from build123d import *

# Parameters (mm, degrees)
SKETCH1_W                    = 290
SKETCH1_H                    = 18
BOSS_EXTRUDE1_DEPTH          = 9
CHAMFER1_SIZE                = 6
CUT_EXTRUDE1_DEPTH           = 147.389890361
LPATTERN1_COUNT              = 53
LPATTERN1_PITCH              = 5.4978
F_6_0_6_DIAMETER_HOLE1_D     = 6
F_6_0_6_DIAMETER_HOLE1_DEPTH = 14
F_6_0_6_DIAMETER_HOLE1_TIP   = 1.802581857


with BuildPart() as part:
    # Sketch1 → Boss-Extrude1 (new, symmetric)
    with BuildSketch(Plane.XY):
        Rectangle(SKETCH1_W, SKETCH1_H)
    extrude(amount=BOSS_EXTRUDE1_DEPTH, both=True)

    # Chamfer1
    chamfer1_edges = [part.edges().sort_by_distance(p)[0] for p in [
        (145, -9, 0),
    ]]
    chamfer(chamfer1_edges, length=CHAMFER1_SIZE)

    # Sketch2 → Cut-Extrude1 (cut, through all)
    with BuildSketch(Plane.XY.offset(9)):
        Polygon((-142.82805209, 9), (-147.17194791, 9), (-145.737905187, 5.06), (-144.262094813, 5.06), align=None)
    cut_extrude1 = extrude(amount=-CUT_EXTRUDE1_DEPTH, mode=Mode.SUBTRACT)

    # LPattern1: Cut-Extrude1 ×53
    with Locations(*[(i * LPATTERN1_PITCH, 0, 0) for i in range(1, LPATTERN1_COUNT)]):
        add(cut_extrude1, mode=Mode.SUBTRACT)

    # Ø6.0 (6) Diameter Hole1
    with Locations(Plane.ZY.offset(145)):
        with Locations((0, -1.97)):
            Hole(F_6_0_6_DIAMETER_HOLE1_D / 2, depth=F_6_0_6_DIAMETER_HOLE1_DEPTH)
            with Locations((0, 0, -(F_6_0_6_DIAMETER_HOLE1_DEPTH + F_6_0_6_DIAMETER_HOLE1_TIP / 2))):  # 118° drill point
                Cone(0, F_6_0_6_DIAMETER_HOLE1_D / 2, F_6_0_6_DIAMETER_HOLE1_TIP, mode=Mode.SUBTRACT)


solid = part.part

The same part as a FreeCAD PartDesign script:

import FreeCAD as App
import Part
import Sketcher
from FreeCAD import Vector
Q = App.Units.Quantity


def edges_at(feature, points):
    """Names of the edges that pass closest to the given points."""
    edges = feature.Shape.Edges
    near = lambda p: min(range(len(edges)), key=lambda i: edges[i].distToShape(Part.Vertex(*p))[0])
    return sorted({f"Edge{near(p) + 1}" for p in points})


def add_polygon(sketch, points):
    """Adds a closed chain of lines whose ends are joined by coincident constraints."""
    first, n = sketch.GeometryCount, len(points)
    for a, b in zip(points, points[1:] + points[:1]):
        sketch.addGeometry(Part.LineSegment(App.Vector(*a, 0), App.Vector(*b, 0)), False)
    for i in range(n):
        sketch.addConstraint(Sketcher.Constraint("Coincident", first + i, 2, first + (i + 1) % n, 1))

doc = App.newDocument("Part")
body = doc.addObject("PartDesign::Body", "Body")

sketch1 = doc.addObject("Sketcher::SketchObject", "Sketch")
body.addObject(sketch1)
sketch1.AttachmentSupport = (doc.XY_Plane, [""])
sketch1.MapMode = "FlatFace"
add_polygon(sketch1, [(-145, 9), (-145, -9), (145, -9), (145, 9)])
sketch1.addConstraint(Sketcher.Constraint("Vertical", 0))
sketch1.addConstraint(Sketcher.Constraint("Horizontal", 1))
sketch1.addConstraint(Sketcher.Constraint("Vertical", 2))
sketch1.addConstraint(Sketcher.Constraint("Horizontal", 3))
sketch1.addConstraint(Sketcher.Constraint("Symmetric", 0, 2, 2, 2, -1, 1))
sketch1.addConstraint(Sketcher.Constraint("DistanceX", 1, 1, 1, 2, 290.0))
sketch1.addConstraint(Sketcher.Constraint("DistanceY", 0, 2, 0, 1, 18.0))
pad1 = doc.addObject("PartDesign::Pad", "Pad")
body.addObject(pad1)
pad1.Profile = sketch1
pad1.Length = 18
pad1.Midplane = True
doc.recompute()

chamfer = doc.addObject("PartDesign::Chamfer", "Chamfer")
body.addObject(chamfer)
chamfer.Base = (pad1, edges_at(pad1, [(145, -9, 0)]))
chamfer.Size = 6

sketch2 = doc.addObject("Sketcher::SketchObject", "Sketch001")
body.addObject(sketch2)
sketch2.AttachmentSupport = (doc.XY_Plane, [""])
sketch2.MapMode = "FlatFace"
sketch2.AttachmentOffset = App.Placement(Vector(0, 0, 9), App.Rotation())
add_polygon(sketch2, [(-142.8, 9), (-147.2, 9), (-145.7, 5.1), (-144.3, 5.1)])
sketch2.addConstraint(Sketcher.Constraint("Horizontal", 0))
sketch2.addConstraint(Sketcher.Constraint("Horizontal", 2))
sketch2.addConstraint(Sketcher.Constraint("Equal", 1, 3))
sketch2.addConstraint(Sketcher.Constraint("Angle", 1, Q("-70 deg")))
sketch2.addConstraint(Sketcher.Constraint("DistanceY", -1, 1, 0, 2, 9.0))
sketch2.addConstraint(Sketcher.Constraint("DistanceY", -1, 1, 1, 2, 5.06))
sketch2.addConstraint(Sketcher.Constraint("DistanceX", 2, 1, 2, 2, 1.47581))
sketch2.addConstraint(Sketcher.Constraint("DistanceX", 0, 2, -1, 1, 147.171948))
pocket1 = doc.addObject("PartDesign::Pocket", "Pocket")
body.addObject(pocket1)
pocket1.Profile = sketch2
pocket1.Type = "ThroughAll"
doc.recompute()

linearpattern = doc.addObject("PartDesign::LinearPattern", "LinearPattern")
body.addObject(linearpattern)
linearpattern.Originals = [pocket1]
linearpattern.Direction = (doc.X_Axis, [""])
linearpattern.Mode = "offset"
linearpattern.Offset = 5.4978
linearpattern.Occurrences = 53
body.Tip = linearpattern

sketch3 = doc.addObject("Sketcher::SketchObject", "Sketch002")
body.addObject(sketch3)
sketch3.AttachmentSupport = (doc.YZ_Plane, [""])
sketch3.MapMode = "FlatFace"
sketch3.AttachmentOffset = App.Placement(Vector(0, 0, -145), App.Rotation())
sketch3.addGeometry(Part.Circle(Vector(-2, 0, 0), Vector(0, 0, 1), 3), False)
sketch3.addConstraint(Sketcher.Constraint("PointOnObject", 0, 3, -1))
sketch3.addConstraint(Sketcher.Constraint("Diameter", 0, 6.0))
sketch3.addConstraint(Sketcher.Constraint("DistanceX", 0, 3, -1, 1, 1.97))
doc.recompute()
hole = doc.addObject("PartDesign::Hole", "Hole")
body.addObject(hole)
hole.Profile = sketch3
hole.ThreadType = "None"
hole.Diameter = 6
hole.DepthType = "Dimension"
hole.Depth = 14
hole.DrillPoint = "Angled"
hole.DrillPointAngle = 118
hole.Reversed = True

doc.recompute()
